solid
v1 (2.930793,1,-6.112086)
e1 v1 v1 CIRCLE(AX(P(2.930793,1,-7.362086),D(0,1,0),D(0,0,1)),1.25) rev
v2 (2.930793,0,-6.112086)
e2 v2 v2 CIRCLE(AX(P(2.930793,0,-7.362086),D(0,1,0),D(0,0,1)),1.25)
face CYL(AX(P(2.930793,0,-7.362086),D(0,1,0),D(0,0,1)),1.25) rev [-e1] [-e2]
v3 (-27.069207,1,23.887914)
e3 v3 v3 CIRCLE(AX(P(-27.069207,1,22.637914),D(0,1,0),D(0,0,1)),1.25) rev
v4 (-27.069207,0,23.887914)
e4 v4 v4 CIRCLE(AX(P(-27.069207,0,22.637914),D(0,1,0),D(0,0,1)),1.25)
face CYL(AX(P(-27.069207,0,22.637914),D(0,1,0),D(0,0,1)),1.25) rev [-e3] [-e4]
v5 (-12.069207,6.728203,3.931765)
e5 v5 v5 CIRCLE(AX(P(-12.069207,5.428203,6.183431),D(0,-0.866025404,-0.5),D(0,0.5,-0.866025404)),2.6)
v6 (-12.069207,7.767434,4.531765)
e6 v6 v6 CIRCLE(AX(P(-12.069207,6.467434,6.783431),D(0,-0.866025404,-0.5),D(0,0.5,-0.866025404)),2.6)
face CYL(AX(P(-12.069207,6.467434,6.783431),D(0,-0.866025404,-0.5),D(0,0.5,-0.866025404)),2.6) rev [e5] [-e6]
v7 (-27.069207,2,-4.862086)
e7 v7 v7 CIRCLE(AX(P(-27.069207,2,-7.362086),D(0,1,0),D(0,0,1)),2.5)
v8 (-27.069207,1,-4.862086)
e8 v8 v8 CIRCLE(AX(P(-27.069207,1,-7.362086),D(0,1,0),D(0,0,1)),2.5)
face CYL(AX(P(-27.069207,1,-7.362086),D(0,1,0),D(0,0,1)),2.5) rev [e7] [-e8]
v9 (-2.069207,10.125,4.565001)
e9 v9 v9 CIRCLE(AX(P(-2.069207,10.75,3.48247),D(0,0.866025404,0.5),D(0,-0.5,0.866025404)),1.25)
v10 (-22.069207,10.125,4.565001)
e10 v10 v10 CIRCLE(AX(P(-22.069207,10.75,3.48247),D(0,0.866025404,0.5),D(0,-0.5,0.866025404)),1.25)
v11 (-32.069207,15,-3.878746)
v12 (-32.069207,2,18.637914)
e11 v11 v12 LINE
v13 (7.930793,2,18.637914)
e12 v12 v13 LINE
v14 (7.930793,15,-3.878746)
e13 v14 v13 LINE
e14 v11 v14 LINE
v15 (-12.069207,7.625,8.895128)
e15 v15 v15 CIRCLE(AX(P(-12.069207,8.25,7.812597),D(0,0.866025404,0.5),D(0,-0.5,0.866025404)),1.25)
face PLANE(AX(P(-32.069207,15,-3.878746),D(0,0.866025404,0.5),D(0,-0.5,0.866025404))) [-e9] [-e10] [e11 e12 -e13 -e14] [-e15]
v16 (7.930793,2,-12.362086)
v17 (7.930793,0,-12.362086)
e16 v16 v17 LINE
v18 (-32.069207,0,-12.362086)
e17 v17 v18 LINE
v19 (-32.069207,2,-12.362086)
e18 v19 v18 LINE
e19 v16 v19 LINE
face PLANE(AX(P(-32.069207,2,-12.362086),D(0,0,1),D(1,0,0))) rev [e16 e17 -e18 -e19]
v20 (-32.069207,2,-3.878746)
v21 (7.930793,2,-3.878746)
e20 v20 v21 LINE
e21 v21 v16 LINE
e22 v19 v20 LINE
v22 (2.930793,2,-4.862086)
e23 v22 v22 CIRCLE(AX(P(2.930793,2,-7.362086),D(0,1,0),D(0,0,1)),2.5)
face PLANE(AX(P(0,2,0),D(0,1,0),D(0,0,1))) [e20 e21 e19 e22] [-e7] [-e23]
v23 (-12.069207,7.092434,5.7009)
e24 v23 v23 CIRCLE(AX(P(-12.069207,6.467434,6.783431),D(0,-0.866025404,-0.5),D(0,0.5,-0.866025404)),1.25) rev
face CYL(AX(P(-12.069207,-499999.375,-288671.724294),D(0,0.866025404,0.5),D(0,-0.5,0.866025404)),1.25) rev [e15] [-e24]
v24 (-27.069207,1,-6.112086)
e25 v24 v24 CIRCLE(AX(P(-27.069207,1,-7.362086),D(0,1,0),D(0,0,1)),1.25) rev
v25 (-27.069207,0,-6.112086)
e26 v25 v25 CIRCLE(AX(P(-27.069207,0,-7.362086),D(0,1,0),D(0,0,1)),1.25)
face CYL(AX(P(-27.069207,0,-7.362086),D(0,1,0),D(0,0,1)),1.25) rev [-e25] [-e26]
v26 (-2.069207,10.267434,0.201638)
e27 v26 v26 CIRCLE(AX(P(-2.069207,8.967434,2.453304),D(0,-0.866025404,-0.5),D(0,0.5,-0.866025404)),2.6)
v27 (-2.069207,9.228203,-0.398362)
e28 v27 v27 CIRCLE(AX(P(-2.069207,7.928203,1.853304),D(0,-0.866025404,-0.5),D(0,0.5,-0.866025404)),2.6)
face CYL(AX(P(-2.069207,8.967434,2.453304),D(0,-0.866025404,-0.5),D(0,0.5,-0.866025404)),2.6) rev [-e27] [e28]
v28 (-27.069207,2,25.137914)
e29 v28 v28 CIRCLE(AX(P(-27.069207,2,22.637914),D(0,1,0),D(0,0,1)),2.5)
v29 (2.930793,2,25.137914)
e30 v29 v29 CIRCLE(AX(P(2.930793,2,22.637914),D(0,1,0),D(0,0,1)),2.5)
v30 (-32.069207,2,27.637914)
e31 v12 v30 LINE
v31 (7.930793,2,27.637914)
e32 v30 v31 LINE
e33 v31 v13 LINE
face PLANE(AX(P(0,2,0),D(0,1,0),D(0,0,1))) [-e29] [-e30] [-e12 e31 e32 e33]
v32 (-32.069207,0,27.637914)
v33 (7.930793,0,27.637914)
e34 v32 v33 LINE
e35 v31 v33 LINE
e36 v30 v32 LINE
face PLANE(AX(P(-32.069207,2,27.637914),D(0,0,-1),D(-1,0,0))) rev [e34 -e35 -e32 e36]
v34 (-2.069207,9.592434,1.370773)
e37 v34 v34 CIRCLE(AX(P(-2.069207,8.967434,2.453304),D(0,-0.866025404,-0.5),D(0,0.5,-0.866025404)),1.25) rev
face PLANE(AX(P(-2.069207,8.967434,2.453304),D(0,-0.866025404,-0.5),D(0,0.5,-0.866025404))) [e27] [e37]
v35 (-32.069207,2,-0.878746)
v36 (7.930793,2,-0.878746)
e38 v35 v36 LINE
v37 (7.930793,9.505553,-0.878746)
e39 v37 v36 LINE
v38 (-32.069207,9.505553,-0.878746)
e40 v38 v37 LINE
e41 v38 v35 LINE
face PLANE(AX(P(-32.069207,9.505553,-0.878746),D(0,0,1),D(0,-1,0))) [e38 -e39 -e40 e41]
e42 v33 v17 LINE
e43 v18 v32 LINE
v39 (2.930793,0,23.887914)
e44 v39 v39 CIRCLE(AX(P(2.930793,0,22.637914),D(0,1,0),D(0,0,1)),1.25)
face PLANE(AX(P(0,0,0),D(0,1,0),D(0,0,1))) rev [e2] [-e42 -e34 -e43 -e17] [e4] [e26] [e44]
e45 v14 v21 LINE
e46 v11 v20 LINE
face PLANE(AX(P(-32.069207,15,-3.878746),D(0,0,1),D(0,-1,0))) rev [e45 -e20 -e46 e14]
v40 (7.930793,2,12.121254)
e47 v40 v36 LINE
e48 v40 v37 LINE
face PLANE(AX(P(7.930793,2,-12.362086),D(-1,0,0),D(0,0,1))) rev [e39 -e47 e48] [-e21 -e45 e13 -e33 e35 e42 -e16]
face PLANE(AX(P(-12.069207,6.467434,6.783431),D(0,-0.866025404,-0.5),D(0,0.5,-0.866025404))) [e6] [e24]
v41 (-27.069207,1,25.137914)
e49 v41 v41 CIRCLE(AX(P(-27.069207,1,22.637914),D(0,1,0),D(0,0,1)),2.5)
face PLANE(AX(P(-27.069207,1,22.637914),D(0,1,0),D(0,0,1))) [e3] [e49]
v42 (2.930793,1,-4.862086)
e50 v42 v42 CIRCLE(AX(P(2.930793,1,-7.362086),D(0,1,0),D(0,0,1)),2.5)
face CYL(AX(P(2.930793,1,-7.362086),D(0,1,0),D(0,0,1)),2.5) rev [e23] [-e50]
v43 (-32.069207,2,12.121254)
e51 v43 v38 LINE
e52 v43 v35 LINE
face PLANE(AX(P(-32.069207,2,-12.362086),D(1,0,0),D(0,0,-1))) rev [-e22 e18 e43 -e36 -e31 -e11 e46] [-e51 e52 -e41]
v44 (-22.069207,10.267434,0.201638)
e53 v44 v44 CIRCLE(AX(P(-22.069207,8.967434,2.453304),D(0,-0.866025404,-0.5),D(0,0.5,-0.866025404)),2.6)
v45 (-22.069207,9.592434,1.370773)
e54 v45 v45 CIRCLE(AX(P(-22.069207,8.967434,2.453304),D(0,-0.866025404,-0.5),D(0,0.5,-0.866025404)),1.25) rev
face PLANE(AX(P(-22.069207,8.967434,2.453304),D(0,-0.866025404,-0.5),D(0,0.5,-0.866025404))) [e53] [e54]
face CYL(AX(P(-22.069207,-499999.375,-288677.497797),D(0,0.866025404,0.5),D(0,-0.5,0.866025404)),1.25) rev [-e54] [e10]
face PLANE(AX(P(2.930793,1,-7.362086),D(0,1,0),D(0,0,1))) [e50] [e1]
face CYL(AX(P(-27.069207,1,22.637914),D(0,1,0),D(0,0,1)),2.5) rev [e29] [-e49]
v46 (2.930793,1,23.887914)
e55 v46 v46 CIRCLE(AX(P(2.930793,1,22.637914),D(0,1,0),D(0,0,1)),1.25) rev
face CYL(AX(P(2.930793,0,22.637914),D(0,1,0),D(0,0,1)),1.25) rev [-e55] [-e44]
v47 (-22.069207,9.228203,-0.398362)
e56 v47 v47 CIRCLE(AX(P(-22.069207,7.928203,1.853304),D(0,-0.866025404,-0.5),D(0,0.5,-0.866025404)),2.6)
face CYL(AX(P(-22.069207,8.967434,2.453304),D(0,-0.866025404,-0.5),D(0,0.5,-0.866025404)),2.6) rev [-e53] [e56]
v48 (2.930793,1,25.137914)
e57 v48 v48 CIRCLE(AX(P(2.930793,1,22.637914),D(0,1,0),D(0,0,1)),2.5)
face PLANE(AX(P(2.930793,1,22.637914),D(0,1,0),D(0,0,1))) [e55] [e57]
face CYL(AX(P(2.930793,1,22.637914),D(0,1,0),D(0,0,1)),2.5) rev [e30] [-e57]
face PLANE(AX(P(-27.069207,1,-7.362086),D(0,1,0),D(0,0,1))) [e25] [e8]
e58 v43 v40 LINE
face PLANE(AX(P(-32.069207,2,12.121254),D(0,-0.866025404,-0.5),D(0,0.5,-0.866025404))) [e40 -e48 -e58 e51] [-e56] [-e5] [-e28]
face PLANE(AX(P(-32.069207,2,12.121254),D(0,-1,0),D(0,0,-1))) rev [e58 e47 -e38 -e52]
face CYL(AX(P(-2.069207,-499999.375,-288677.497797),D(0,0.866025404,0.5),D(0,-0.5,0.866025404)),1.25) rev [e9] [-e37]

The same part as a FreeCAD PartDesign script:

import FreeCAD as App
import Part
import Sketcher
from FreeCAD import Vector
Q = App.Units.Quantity


def add_polygon(sketch, points):
    """Adds a closed chain of lines whose ends are joined by coincident constraints."""
    first, n = sketch.GeometryCount, len(points)
    for a, b in zip(points, points[1:] + points[:1]):
        sketch.addGeometry(Part.LineSegment(App.Vector(*a, 0), App.Vector(*b, 0)), False)
    for i in range(n):
        sketch.addConstraint(Sketcher.Constraint("Coincident", first + i, 2, first + (i + 1) % n, 1))

doc = App.newDocument("Part")
body = doc.addObject("PartDesign::Body", "Body")

# Sketch on XZ plane
sketch1 = body.newObject("Sketcher::SketchObject", "Sketch")
sketch1.AttachmentSupport = (doc.getObject("XZ_Plane"), [""])
sketch1.MapMode = "FlatFace"
add_polygon(sketch1, [(-32, -12), (-32, 28), (8, 28), (8, -12)])  # lines 0-3
sketch1.addConstraint(Sketcher.Constraint("Vertical", 0))
sketch1.addConstraint(Sketcher.Constraint("Horizontal", 1))
sketch1.addConstraint(Sketcher.Constraint("Vertical", 2))
sketch1.addConstraint(Sketcher.Constraint("Horizontal", 3))
sketch1.addConstraint(Sketcher.Constraint("Equal", 3, 0))
sketch1.addConstraint(Sketcher.Constraint("DistanceX", 1, 1, 1, 2, Q("40 mm")))
sketch1.addConstraint(Sketcher.Constraint("DistanceX", 0, 2, -1, 1, Q("32.069207 mm")))
sketch1.addConstraint(Sketcher.Constraint("DistanceY", -1, 1, 0, 2, Q("27.637914 mm")))
pad1 = body.newObject("PartDesign::Pad", "Pad")
pad1.Profile = sketch1
pad1.Length = 2
pad1.Reversed = True

# Sketch on XZ plane
sketch2 = body.newObject("Sketcher::SketchObject", "Sketch001")
sketch2.AttachmentSupport = (doc.getObject("XZ_Plane"), [""])
sketch2.MapMode = "FlatFace"
sketch2.AttachmentOffset = App.Placement(Vector(0, 0, -2), App.Rotation())
sketch2.addGeometry(Part.Circle(Vector(-27.1, 22.6, 0), Vector(0, 0, 1), 1.2), False)
sketch2.addGeometry(Part.Circle(Vector(-27.1, -7.4, 0), Vector(0, 0, 1), 1.2), False)
sketch2.addGeometry(Part.Circle(Vector(2.9, -7.4, 0), Vector(0, 0, 1), 1.2), False)
sketch2.addGeometry(Part.Circle(Vector(2.9, 22.6, 0), Vector(0, 0, 1), 1.2), False)
sketch2.addConstraint(Sketcher.Constraint("Equal", 0, 1))
sketch2.addConstraint(Sketcher.Constraint("Equal", 1, 2))
sketch2.addConstraint(Sketcher.Constraint("Equal", 2, 3))
sketch2.addConstraint(Sketcher.Constraint("Horizontal", 1, 3, 2, 3))
sketch2.addConstraint(Sketcher.Constraint("Horizontal", 0, 3, 3, 3))
sketch2.addConstraint(Sketcher.Constraint("Vertical", 0, 3, 1, 3))
sketch2.addConstraint(Sketcher.Constraint("Vertical", 2, 3, 3, 3))
sketch2.addConstraint(Sketcher.Constraint("Diameter", 0, Q("2.5 mm")))
sketch2.addConstraint(Sketcher.Constraint("DistanceY", 1, 3, 0, 3, Q("30 mm")))
sketch2.addConstraint(Sketcher.Constraint("DistanceX", 1, 3, 2, 3, Q("30 mm")))
sketch2.addConstraint(Sketcher.Constraint("DistanceX", 0, 3, -1, 1, Q("27.069207 mm")))
sketch2.addConstraint(Sketcher.Constraint("DistanceY", -1, 1, 0, 3, Q("22.637914 mm")))
pocket1 = body.newObject("PartDesign::Pocket", "Pocket")
pocket1.Profile = sketch2
pocket1.Type = "ThroughAll"
pocket1.Reversed = True

# Sketch on YZ plane
sketch3 = body.newObject("Sketcher::SketchObject", "Sketch002")
sketch3.AttachmentSupport = (doc.getObject("YZ_Plane"), [""])
sketch3.MapMode = "FlatFace"
sketch3.AttachmentOffset = App.Placement(Vector(0, 0, 7.930793), App.Rotation())
add_polygon(sketch3, [(2, 19), (2, -4), (15, -4)])  # lines 0-2
sketch3.addConstraint(Sketcher.Constraint("Vertical", 0))
sketch3.addConstraint(Sketcher.Constraint("Horizontal", 1))
sketch3.addConstraint(Sketcher.Constraint("DistanceX", 1, 1, 1, 2, Q("13 mm")))
sketch3.addConstraint(Sketcher.Constraint("Angle", 2, Q("120 deg")))
sketch3.addConstraint(Sketcher.Constraint("DistanceX", -1, 1, 0, 2, Q("2 mm")))
sketch3.addConstraint(Sketcher.Constraint("DistanceY", 0, 2, -1, 1, Q("3.878746 mm")))
pad2 = body.newObject("PartDesign::Pad", "Pad001")
pad2.Profile = sketch3
pad2.Length = 40
pad2.Reversed = True

# Sketch on XZ plane
sketch4 = body.newObject("Sketcher::SketchObject", "Sketch003")
sketch4.AttachmentSupport = (doc.getObject("XZ_Plane"), [""])
sketch4.MapMode = "FlatFace"
sketch4.AttachmentOffset = App.Placement(Vector(0, 0, -2), App.Rotation())
sketch4.addGeometry(Part.Circle(Vector(2.9, -7.4, 0), Vector(0, 0, 1), 2.5), False)
sketch4.addGeometry(Part.Circle(Vector(2.9, 22.6, 0), Vector(0, 0, 1), 2.5), False)
sketch4.addGeometry(Part.Circle(Vector(37.9, -5.9, 0), Vector(0, 0, 1), 2.5), False)
sketch4.addGeometry(Part.Circle(Vector(-27.1, -7.4, 0), Vector(0, 0, 1), 2.5), False)
sketch4.addGeometry(Part.Circle(Vector(-27.1, 22.6, 0), Vector(0, 0, 1), 2.5), False)
sketch4.addConstraint(Sketcher.Constraint("Equal", 0, 1))
sketch4.addConstraint(Sketcher.Constraint("Equal", 1, 2))
sketch4.addConstraint(Sketcher.Constraint("Equal", 2, 3))
sketch4.addConstraint(Sketcher.Constraint("Equal", 3, 4))
sketch4.addConstraint(Sketcher.Constraint("Horizontal", 0, 3, 3, 3))
sketch4.addConstraint(Sketcher.Constraint("Horizontal", 1, 3, 4, 3))
sketch4.addConstraint(Sketcher.Constraint("Vertical", 0, 3, 1, 3))
sketch4.addConstraint(Sketcher.Constraint("Vertical", 3, 3, 4, 3))
sketch4.addConstraint(Sketcher.Constraint("Diameter", 0, Q("5 mm")))
sketch4.addConstraint(Sketcher.Constraint("DistanceY", 0, 3, 1, 3, Q("30 mm")))
sketch4.addConstraint(Sketcher.Constraint("DistanceX", 3, 3, 0, 3, Q("30 mm")))
sketch4.addConstraint(Sketcher.Constraint("DistanceX", -1, 1, 2, 3, Q("37.90204 mm")))
sketch4.addConstraint(Sketcher.Constraint("DistanceX", -1, 1, 0, 3, Q("2.930793 mm")))
sketch4.addConstraint(Sketcher.Constraint("DistanceY", 0, 3, -1, 1, Q("7.362086 mm")))
sketch4.addConstraint(Sketcher.Constraint("DistanceY", 2, 3, -1, 1, Q("5.850033 mm")))
pocket2 = body.newObject("PartDesign::Pocket", "Pocket001")
pocket2.Profile = sketch4
pocket2.Length = 1
pocket2.Reversed = True

# Sketch on YZ plane
sketch5 = body.newObject("Sketcher::SketchObject", "Sketch004")
sketch5.AttachmentSupport = (doc.getObject("YZ_Plane"), [""])
sketch5.MapMode = "FlatFace"
sketch5.AttachmentOffset = App.Placement(Vector(0, 0, 7.930793), App.Rotation())
add_polygon(sketch5, [(2, 12), (2, -1), (10, -1)])  # lines 0-2
sketch5.addConstraint(Sketcher.Constraint("Vertical", 0))
sketch5.addConstraint(Sketcher.Constraint("Horizontal", 1))
sketch5.addConstraint(Sketcher.Constraint("DistanceY", 0, 2, 0, 1, Q("13 mm")))
sketch5.addConstraint(Sketcher.Constraint("Angle", 2, Q("120 deg")))
sketch5.addConstraint(Sketcher.Constraint("DistanceX", -1, 1, 0, 2, Q("2 mm")))
sketch5.addConstraint(Sketcher.Constraint("DistanceY", 0, 2, -1, 1, Q("0.878746 mm")))
pocket3 = body.newObject("PartDesign::Pocket", "Pocket002")
pocket3.Profile = sketch5
pocket3.Type = "ThroughAll"

# Sketch on an angled plane
sketch6 = body.newObject("Sketcher::SketchObject", "Sketch005")
sketch6.Placement = App.Placement(Vector(0, 9.570454, 5.525504), App.Rotation(Vector(1, 0, 0), Vector(0, 0.5, -0.866025404), Vector(0, 0.866025404, 0.5), "ZXY"))
sketch6.addGeometry(Part.Circle(Vector(-22.1, 2.4, 0), Vector(0, 0, 1), 1.2), False)
sketch6.addConstraint(Sketcher.Constraint("Diameter", 0, Q("2.5 mm")))
sketch6.addConstraint(Sketcher.Constraint("DistanceX", 0, 3, -1, 1, Q("22.069207 mm")))
sketch6.addConstraint(Sketcher.Constraint("DistanceY", -1, 1, 0, 3, Q("2.359093 mm")))
pocket4 = body.newObject("PartDesign::Pocket", "Pocket003")
pocket4.Profile = sketch6
pocket4.Type = "UpToFirst"

# Sketch on an angled plane
sketch7 = body.newObject("Sketcher::SketchObject", "Sketch006")
sketch7.Placement = App.Placement(Vector(0, 9.570454, 5.525504), App.Rotation(Vector(1, 0, 0), Vector(0, 0.5, -0.866025404), Vector(0, 0.866025404, 0.5), "ZXY"))
sketch7.addGeometry(Part.Circle(Vector(-12.1, -2.6, 0), Vector(0, 0, 1), 1.2), False)
sketch7.addConstraint(Sketcher.Constraint("Diameter", 0, Q("2.5 mm")))
sketch7.addConstraint(Sketcher.Constraint("DistanceX", 0, 3, -1, 1, Q("12.069207 mm")))
sketch7.addConstraint(Sketcher.Constraint("DistanceY", 0, 3, -1, 1, Q("2.640907 mm")))
pocket5 = body.newObject("PartDesign::Pocket", "Pocket004")
pocket5.Profile = sketch7
pocket5.Type = "UpToFirst"

# Sketch on an angled plane
sketch8 = body.newObject("Sketcher::SketchObject", "Sketch007")
sketch8.Placement = App.Placement(Vector(0, 9.570454, 5.525504), App.Rotation(Vector(1, 0, 0), Vector(0, 0.5, -0.866025404), Vector(0, 0.866025404, 0.5), "ZXY"))
sketch8.addGeometry(Part.Circle(Vector(-2.1, 2.4, 0), Vector(0, 0, 1), 1.2), False)
sketch8.addConstraint(Sketcher.Constraint("Diameter", 0, Q("2.5 mm")))
sketch8.addConstraint(Sketcher.Constraint("DistanceX", 0, 3, -1, 1, Q("2.069207 mm")))
sketch8.addConstraint(Sketcher.Constraint("DistanceY", -1, 1, 0, 3, Q("2.359093 mm")))
pocket6 = body.newObject("PartDesign::Pocket", "Pocket005")
pocket6.Profile = sketch8
pocket6.Type = "UpToFirst"

# Sketch on an angled plane
sketch9 = body.newObject("Sketcher::SketchObject", "Sketch008")
sketch9.Placement = App.Placement(Vector(0, 6.748657, 3.896339), App.Rotation(Vector(-1, 0, 0), Vector(0, 0.5, -0.866025404), Vector(0, -0.866025404, -0.5), "ZXY"))
sketch9.addGeometry(Part.Circle(Vector(2.1, 2.4, 0), Vector(0, 0, 1), 2.6), False)
sketch9.addGeometry(Part.Circle(Vector(22.1, 2.4, 0), Vector(0, 0, 1), 2.6), False)
sketch9.addGeometry(Part.Circle(Vector(12.1, -2.6, 0), Vector(0, 0, 1), 2.6), False)
sketch9.addConstraint(Sketcher.Constraint("Equal", 0, 1))
sketch9.addConstraint(Sketcher.Constraint("Equal", 1, 2))
sketch9.addConstraint(Sketcher.Constraint("Horizontal", 0, 3, 1, 3))
sketch9.addConstraint(Sketcher.Constraint("Diameter", 0, Q("5.2 mm")))
sketch9.addConstraint(Sketcher.Constraint("DistanceX", 0, 3, 1, 3, Q("20 mm")))
sketch9.addConstraint(Sketcher.Constraint("DistanceX", 0, 3, 2, 3, Q("10 mm")))
sketch9.addConstraint(Sketcher.Constraint("DistanceY", 2, 3, 0, 3, Q("5 mm")))
sketch9.addConstraint(Sketcher.Constraint("DistanceX", -1, 1, 0, 3, Q("2.069207 mm")))
sketch9.addConstraint(Sketcher.Constraint("DistanceY", -1, 1, 0, 3, Q("2.359093 mm")))
pocket7 = body.newObject("PartDesign::Pocket", "Pocket006")
pocket7.Profile = sketch9
pocket7.Length = 1.2

doc.recompute()
